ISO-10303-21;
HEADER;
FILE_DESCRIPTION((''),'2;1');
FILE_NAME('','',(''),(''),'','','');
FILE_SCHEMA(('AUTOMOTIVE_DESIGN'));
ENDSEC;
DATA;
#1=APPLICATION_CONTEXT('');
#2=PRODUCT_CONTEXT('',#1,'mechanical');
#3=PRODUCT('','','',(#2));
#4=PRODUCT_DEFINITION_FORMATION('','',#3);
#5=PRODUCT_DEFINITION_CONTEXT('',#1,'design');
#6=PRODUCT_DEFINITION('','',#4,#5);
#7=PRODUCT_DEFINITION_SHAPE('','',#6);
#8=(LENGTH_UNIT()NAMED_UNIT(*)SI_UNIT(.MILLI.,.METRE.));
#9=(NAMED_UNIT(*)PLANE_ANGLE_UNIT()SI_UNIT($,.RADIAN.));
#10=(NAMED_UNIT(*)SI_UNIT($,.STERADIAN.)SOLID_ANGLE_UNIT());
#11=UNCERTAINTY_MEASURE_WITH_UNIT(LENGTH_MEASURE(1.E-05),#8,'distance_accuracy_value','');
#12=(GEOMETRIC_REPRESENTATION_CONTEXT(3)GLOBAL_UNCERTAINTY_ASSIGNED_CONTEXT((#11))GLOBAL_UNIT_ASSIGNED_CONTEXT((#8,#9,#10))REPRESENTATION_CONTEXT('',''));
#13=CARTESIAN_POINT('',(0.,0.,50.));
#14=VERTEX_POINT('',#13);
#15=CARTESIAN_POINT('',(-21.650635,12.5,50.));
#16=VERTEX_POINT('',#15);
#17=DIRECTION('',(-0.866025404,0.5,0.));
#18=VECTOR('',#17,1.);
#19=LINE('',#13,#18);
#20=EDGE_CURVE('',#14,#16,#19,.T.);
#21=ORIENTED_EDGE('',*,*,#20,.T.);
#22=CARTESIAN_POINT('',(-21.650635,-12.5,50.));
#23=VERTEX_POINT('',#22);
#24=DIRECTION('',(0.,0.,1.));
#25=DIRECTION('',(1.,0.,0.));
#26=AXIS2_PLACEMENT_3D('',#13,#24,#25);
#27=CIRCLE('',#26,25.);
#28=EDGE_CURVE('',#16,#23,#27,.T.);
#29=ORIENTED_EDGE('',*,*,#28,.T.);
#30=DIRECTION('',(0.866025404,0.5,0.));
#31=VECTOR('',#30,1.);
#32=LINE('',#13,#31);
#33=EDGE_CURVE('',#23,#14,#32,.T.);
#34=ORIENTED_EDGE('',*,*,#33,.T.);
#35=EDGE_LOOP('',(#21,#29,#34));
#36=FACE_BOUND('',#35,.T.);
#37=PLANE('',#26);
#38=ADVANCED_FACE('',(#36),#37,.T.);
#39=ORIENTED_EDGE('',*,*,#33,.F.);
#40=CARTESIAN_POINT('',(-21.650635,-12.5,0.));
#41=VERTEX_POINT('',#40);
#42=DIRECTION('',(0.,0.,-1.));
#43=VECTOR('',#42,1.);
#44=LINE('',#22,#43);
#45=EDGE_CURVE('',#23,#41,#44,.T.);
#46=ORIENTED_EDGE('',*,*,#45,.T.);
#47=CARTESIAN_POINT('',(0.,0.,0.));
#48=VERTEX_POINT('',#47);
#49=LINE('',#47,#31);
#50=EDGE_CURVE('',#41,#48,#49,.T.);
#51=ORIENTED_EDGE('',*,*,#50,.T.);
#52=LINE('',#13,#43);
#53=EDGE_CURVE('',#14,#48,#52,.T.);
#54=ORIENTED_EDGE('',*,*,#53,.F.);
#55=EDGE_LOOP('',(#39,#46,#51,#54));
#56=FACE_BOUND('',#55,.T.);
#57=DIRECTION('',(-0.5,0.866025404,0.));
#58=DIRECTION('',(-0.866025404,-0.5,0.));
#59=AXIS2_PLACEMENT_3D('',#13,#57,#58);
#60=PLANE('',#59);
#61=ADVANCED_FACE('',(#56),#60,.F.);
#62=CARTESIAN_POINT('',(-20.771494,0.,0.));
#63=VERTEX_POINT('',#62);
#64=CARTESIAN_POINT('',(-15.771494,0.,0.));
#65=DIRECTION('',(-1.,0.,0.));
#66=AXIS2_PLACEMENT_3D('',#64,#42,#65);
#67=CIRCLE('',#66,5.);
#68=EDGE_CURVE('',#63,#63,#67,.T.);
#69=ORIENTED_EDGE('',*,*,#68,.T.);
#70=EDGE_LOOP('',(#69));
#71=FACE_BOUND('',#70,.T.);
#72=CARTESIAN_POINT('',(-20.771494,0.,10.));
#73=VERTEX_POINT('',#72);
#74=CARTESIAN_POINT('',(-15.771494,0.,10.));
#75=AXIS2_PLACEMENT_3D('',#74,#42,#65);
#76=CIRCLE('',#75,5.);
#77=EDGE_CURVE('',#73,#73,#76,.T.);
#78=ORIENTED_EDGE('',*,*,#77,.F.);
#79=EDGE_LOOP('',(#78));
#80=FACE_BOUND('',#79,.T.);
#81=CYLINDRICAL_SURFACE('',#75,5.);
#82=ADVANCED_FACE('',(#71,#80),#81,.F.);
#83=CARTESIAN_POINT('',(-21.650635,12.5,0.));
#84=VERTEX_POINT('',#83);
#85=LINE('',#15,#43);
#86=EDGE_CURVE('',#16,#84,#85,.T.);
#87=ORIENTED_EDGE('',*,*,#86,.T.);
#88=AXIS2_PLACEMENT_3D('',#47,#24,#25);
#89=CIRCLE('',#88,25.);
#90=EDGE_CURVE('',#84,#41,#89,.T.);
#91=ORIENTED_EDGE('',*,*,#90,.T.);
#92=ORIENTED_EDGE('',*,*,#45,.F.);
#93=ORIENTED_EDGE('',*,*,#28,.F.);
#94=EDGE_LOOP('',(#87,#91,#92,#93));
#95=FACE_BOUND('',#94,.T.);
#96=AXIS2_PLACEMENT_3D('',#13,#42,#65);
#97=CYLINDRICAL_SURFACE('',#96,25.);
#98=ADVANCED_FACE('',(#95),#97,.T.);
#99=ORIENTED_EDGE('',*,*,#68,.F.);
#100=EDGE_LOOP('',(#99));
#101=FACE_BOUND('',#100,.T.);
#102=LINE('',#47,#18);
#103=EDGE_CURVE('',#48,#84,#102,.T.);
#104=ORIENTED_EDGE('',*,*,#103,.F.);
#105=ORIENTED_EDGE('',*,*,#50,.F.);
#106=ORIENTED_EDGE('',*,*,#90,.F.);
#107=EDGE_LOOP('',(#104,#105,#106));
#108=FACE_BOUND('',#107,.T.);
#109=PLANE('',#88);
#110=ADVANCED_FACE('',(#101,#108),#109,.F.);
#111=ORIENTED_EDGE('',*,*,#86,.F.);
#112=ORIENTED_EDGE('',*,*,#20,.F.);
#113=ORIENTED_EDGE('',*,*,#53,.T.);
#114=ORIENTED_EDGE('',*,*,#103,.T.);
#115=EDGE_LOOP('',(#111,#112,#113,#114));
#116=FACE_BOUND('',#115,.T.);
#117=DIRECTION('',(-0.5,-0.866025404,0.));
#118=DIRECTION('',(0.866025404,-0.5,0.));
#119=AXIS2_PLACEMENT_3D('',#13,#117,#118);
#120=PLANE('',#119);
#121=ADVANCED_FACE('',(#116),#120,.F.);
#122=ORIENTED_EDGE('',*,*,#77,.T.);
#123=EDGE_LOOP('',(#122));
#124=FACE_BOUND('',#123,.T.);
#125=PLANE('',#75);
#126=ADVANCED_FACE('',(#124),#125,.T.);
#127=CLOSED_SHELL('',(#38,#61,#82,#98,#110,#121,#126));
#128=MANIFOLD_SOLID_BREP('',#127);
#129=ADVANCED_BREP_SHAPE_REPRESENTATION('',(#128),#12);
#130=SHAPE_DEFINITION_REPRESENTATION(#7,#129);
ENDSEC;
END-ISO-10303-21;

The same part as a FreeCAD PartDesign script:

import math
import FreeCAD as App
import Part
import Sketcher
from FreeCAD import Vector
Q = App.Units.Quantity

doc = App.newDocument("Part")
body = doc.addObject("PartDesign::Body", "Body")

# Sketch on XY plane
sketch1 = body.newObject("Sketcher::SketchObject", "Sketch")
sketch1.AttachmentSupport = (doc.getObject("XY_Plane"), [""])
sketch1.MapMode = "FlatFace"
sketch1.addGeometry([
    Part.LineSegment(Vector(0, 0, 0), Vector(-22, 12, 0)),
    Part.ArcOfCircle(Part.Circle(Vector(0, 0, 0), Vector(0, 0, 1), 25), math.radians(150), math.radians(210)),
    Part.LineSegment(Vector(-22, -12, 0), Vector(0, 0, 0)),
], False)
sketch1.addConstraint([
    Sketcher.Constraint("Coincident", 0, 2, 1, 1),
    Sketcher.Constraint("Coincident", 1, 2, 2, 1),
    Sketcher.Constraint("Coincident", 2, 2, 0, 1),
    Sketcher.Constraint("Coincident", 1, 3, -1, 1),
    Sketcher.Constraint("Coincident", 2, 2, -1, 1),
    Sketcher.Constraint("Vertical", 0, 2, 1, 2),
    Sketcher.Constraint("Radius", 1, Q("25 mm")),
    Sketcher.Constraint("Angle", 0, Q("150 deg")),
])
pad1 = body.newObject("PartDesign::Pad", "Pad")
pad1.Profile = sketch1
pad1.Length = 50

# Sketch on XY plane
sketch2 = body.newObject("Sketcher::SketchObject", "Sketch001")
sketch2.AttachmentSupport = (doc.getObject("XY_Plane"), [""])
sketch2.MapMode = "FlatFace"
sketch2.addGeometry(Part.Circle(Vector(-16, 0, 0), Vector(0, 0, 1), 5), False)
sketch2.addConstraint([
    Sketcher.Constraint("PointOnObject", 0, 3, -1),
    Sketcher.Constraint("Diameter", 0, Q("10 mm")),
    Sketcher.Constraint("DistanceX", 0, 3, -1, 1, Q("15.771494 mm")),
])
pocket1 = body.newObject("PartDesign::Pocket", "Pocket")
pocket1.Profile = sketch2
pocket1.Length = 10
pocket1.Reversed = True

doc.recompute()
